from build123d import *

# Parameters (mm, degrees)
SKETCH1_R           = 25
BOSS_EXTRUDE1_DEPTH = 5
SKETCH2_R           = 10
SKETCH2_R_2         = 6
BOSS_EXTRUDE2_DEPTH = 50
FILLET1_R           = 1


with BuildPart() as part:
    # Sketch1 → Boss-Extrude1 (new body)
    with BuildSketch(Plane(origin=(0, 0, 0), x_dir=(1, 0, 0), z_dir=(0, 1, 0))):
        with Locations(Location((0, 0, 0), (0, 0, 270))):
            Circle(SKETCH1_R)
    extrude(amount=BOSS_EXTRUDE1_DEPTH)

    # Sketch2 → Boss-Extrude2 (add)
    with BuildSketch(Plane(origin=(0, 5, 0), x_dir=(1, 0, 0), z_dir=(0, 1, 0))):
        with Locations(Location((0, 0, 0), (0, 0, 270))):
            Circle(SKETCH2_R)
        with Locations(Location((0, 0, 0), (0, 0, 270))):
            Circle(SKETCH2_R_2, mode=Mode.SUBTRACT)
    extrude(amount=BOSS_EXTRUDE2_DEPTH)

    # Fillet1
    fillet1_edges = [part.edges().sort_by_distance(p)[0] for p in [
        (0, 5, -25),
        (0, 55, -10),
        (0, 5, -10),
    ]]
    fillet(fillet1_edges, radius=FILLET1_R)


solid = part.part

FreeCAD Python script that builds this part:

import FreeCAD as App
import Part
import Sketcher

V = App.Vector
Q = App.Units.Quantity


def edges_at(feature, points):
    """Names of the edges that pass closest to the given points."""
    edges = feature.Shape.Edges
    near = lambda p: min(range(len(edges)), key=lambda i: edges[i].distToShape(Part.Vertex(*p))[0])
    return sorted({f"Edge{near(p) + 1}" for p in points})

doc = App.newDocument("Part")
params = doc.addObject("Spreadsheet::Sheet", "Params")
for row, (alias, value) in enumerate([
    ("sketch1_diameter", "50 mm"),
    ("pad1_length", "5 mm"),
    ("sketch2_diameter", "20 mm"),
    ("sketch2_diameter2", "12 mm"),
    ("pad2_length", "50 mm"),
    ("fillet_radius", "1 mm"),
], start=1):
    params.set(f"A{row}", alias)
    params.set(f"B{row}", "=" + value)
    params.setAlias(f"B{row}", alias)

body = doc.addObject("PartDesign::Body", "Body")

# Sketch on XZ plane
sketch1 = body.newObject("Sketcher::SketchObject", "Sketch")
sketch1.AttachmentSupport = (doc.getObject("XZ_Plane"), [""])
sketch1.MapMode = "FlatFace"
sketch1.addGeometry(Part.Circle(V(0, 0, 0), V(0, 0, 1), 25), False)
sketch1.addConstraint([
    Sketcher.Constraint("Coincident", 0, 3, -1, 1),
    Sketcher.Constraint("Diameter", 0, Q("50 mm")),
])
sketch1.setExpression("Constraints[1]", "Params.sketch1_diameter")
pad1 = body.newObject("PartDesign::Pad", "Pad")
pad1.Profile = sketch1
pad1.setExpression("Length", "Params.pad1_length")
pad1.Reversed = True

# Sketch on XZ plane
sketch2 = body.newObject("Sketcher::SketchObject", "Sketch001")
sketch2.AttachmentSupport = (doc.getObject("XZ_Plane"), [""])
sketch2.MapMode = "FlatFace"
sketch2.AttachmentOffset = App.Placement(V(0, 0, -5), App.Rotation())
sketch2.addGeometry([
    Part.Circle(V(0, 0, 0), V(0, 0, 1), 10),
    Part.Circle(V(0, 0, 0), V(0, 0, 1), 6),
], False)
sketch2.addConstraint([
    Sketcher.Constraint("Coincident", 0, 3, -1, 1),
    Sketcher.Constraint("Coincident", 1, 3, -1, 1),
    Sketcher.Constraint("Diameter", 0, Q("20 mm")),
    Sketcher.Constraint("Diameter", 1, Q("12 mm")),
])
sketch2.setExpression("Constraints[2]", "Params.sketch2_diameter")
sketch2.setExpression("Constraints[3]", "Params.sketch2_diameter2")
pad2 = body.newObject("PartDesign::Pad", "Pad001")
pad2.Profile = sketch2
pad2.setExpression("Length", "Params.pad2_length")
pad2.Reversed = True
doc.recompute()

fillet = body.newObject("PartDesign::Fillet", "Fillet")
fillet.Base = (pad2, edges_at(pad2, [(0, 5, -25), (0, 55, -10), (0, 5, -10)]))
fillet.setExpression("Radius", "Params.fillet_radius")

doc.recompute()
